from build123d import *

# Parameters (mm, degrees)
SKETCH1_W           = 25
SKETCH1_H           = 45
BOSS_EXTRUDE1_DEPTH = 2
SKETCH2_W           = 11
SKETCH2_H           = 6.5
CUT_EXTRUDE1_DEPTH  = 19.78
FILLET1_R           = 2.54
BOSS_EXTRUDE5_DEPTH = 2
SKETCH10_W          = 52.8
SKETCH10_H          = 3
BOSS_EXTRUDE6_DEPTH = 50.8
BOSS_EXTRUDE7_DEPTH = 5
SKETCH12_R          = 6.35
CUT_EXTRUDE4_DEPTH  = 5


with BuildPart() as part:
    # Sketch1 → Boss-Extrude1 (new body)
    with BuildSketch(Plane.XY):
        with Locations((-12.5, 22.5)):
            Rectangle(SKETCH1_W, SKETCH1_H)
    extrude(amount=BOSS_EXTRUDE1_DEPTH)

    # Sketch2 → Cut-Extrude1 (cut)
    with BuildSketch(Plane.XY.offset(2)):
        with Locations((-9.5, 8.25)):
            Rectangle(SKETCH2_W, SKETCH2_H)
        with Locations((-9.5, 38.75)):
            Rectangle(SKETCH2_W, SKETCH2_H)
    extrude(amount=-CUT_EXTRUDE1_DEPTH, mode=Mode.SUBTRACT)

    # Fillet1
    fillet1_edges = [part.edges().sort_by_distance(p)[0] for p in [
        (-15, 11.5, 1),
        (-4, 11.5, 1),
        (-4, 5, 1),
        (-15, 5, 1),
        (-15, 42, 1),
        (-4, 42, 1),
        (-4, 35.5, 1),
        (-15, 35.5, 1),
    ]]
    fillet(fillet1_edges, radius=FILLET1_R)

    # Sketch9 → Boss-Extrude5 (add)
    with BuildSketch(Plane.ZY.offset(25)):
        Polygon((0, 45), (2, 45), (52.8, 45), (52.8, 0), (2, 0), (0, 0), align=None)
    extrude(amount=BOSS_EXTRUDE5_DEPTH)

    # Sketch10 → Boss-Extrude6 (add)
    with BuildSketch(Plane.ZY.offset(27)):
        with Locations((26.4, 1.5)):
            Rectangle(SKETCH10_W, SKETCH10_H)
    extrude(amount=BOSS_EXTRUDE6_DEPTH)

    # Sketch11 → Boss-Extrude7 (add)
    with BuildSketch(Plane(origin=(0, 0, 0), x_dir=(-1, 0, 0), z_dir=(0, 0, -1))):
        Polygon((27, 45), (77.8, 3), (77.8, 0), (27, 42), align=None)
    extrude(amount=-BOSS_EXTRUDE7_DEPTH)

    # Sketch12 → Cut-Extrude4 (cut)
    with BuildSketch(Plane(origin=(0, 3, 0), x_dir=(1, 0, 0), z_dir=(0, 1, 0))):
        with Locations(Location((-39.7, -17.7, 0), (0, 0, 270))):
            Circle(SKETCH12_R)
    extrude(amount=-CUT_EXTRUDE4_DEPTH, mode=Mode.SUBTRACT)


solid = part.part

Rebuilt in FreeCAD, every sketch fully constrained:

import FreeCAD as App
import Part
import Sketcher


def edges_at(feature, points):
    """Names of the edges that pass closest to the given points."""
    edges = feature.Shape.Edges
    near = lambda p: min(range(len(edges)), key=lambda i: edges[i].distToShape(Part.Vertex(*p))[0])
    return sorted({f"Edge{near(p) + 1}" for p in points})

doc = App.newDocument("Part")
params = doc.addObject("Spreadsheet::Sheet", "Params")
for row, (alias, value) in enumerate([
    ("sketch1_width", "25 mm"),
    ("sketch1_height", "45 mm"),
    ("pad1_length", "2 mm"),
    ("sketch2_width", "11 mm"),
    ("sketch2_height", "6.5 mm"),
    ("pocket1_length", "19.78 mm"),
    ("fillet_radius", "2.54 mm"),
    ("sketch3_width", "45 mm"),
    ("sketch3_height", "52.8 mm"),
    ("pad2_length", "2 mm"),
    ("sketch4_width", "3 mm"),
    ("sketch4_height", "52.8 mm"),
    ("pad3_length", "50.8 mm"),
    ("sketch5_height", "3 mm"),
    ("pad4_length", "5 mm"),
    ("sketch6_diameter", "12.7 mm"),
    ("pocket2_length", "5 mm"),
], start=1):
    params.set(f"A{row}", alias)
    params.set(f"B{row}", "=" + value)
    params.setAlias(f"B{row}", alias)

body = doc.addObject("PartDesign::Body", "Body")

# Sketch on XY plane
sketch1 = body.newObject("Sketcher::SketchObject", "Sketch")
sketch1.AttachmentSupport = (doc.getObject("XY_Plane"), [""])
sketch1.MapMode = "FlatFace"
sketch1.addGeometry([
    Part.LineSegment(App.Vector(-25, 45, 0), App.Vector(-25, 0, 0)),
    Part.LineSegment(App.Vector(-25, 0, 0), App.Vector(0, 0, 0)),
    Part.LineSegment(App.Vector(0, 0, 0), App.Vector(0, 45, 0)),
    Part.LineSegment(App.Vector(0, 45, 0), App.Vector(-25, 45, 0)),
], False)
sketch1.addConstraint([
    Sketcher.Constraint("Coincident", 0, 2, 1, 1),
    Sketcher.Constraint("Coincident", 1, 2, 2, 1),
    Sketcher.Constraint("Coincident", 2, 2, 3, 1),
    Sketcher.Constraint("Coincident", 3, 2, 0, 1),
    Sketcher.Constraint("Vertical", 0),
    Sketcher.Constraint("Horizontal", 1),
    Sketcher.Constraint("Vertical", 2),
    Sketcher.Constraint("Horizontal", 3),
    Sketcher.Constraint("Coincident", 1, 2, -1, 1),
    Sketcher.Constraint("DistanceX", 1, 1, 1, 2, 25.0),
    Sketcher.Constraint("DistanceY", 0, 2, 0, 1, 45.0),
])
sketch1.setExpression("Constraints[9]", "Params.sketch1_width")
sketch1.setExpression("Constraints[10]", "Params.sketch1_height")
pad1 = body.newObject("PartDesign::Pad", "Pad")
pad1.Profile = sketch1
pad1.setExpression("Length", "Params.pad1_length")

# Sketch on XY plane
sketch2 = body.newObject("Sketcher::SketchObject", "Sketch001")
sketch2.AttachmentSupport = (doc.getObject("XY_Plane"), [""])
sketch2.MapMode = "FlatFace"
sketch2.AttachmentOffset = App.Placement(App.Vector(0, 0, 2), App.Rotation())
sketch2.addGeometry([
    Part.LineSegment(App.Vector(-15, 12, 0), App.Vector(-15, 5, 0)),  # 0
    Part.LineSegment(App.Vector(-15, 5, 0), App.Vector(-4, 5, 0)),  # 1
    Part.LineSegment(App.Vector(-4, 5, 0), App.Vector(-4, 12, 0)),  # 2
    Part.LineSegment(App.Vector(-4, 12, 0), App.Vector(-15, 12, 0)),  # 3
    Part.LineSegment(App.Vector(-15, 42, 0), App.Vector(-15, 36, 0)),  # 4
    Part.LineSegment(App.Vector(-15, 36, 0), App.Vector(-4, 36, 0)),  # 5
    Part.LineSegment(App.Vector(-4, 36, 0), App.Vector(-4, 42, 0)),  # 6
    Part.LineSegment(App.Vector(-4, 42, 0), App.Vector(-15, 42, 0)),  # 7
], False)
sketch2.addConstraint([
    Sketcher.Constraint("Coincident", 0, 2, 1, 1),
    Sketcher.Constraint("Coincident", 1, 2, 2, 1),
    Sketcher.Constraint("Coincident", 2, 2, 3, 1),
    Sketcher.Constraint("Coincident", 3, 2, 0, 1),
    Sketcher.Constraint("Coincident", 4, 2, 5, 1),
    Sketcher.Constraint("Coincident", 5, 2, 6, 1),
    Sketcher.Constraint("Coincident", 6, 2, 7, 1),
    Sketcher.Constraint("Coincident", 7, 2, 4, 1),
    Sketcher.Constraint("Vertical", 0),
    Sketcher.Constraint("Horizontal", 1),
    Sketcher.Constraint("Vertical", 2),
    Sketcher.Constraint("Horizontal", 3),
    Sketcher.Constraint("Vertical", 4),
    Sketcher.Constraint("Horizontal", 5),
    Sketcher.Constraint("Vertical", 6),
    Sketcher.Constraint("Horizontal", 7),
    Sketcher.Constraint("Vertical", 3, 2, 4, 2),
    Sketcher.Constraint("Vertical", 2, 2, 5, 2),
    Sketcher.Constraint("Equal", 2, 4),
    Sketcher.Constraint("DistanceX", 1, 1, 1, 2, 11.0),
    Sketcher.Constraint("DistanceY", 0, 2, 0, 1, 6.5),
    Sketcher.Constraint("DistanceX", 0, 2, -1, 1, 15.0),
    Sketcher.Constraint("DistanceY", -1, 1, 0, 2, 5.0),
    Sketcher.Constraint("DistanceY", -1, 1, 6, 2, 42.0),
])
sketch2.setExpression("Constraints[19]", "Params.sketch2_width")
sketch2.setExpression("Constraints[20]", "Params.sketch2_height")
pocket1 = body.newObject("PartDesign::Pocket", "Pocket")
pocket1.Profile = sketch2
pocket1.setExpression("Length", "Params.pocket1_length")
doc.recompute()

fillet = body.newObject("PartDesign::Fillet", "Fillet")
fillet.Base = (pocket1, edges_at(pocket1, [
    (-15, 11.5, 1),
    (-4, 11.5, 1),
    (-4, 5, 1),
    (-15, 5, 1),
    (-15, 42, 1),
    (-4, 42, 1),
    (-4, 35.5, 1),
    (-15, 35.5, 1),
]))
fillet.setExpression("Radius", "Params.fillet_radius")

# Sketch on YZ plane
sketch3 = body.newObject("Sketcher::SketchObject", "Sketch002")
sketch3.AttachmentSupport = (doc.getObject("YZ_Plane"), [""])
sketch3.MapMode = "FlatFace"
sketch3.AttachmentOffset = App.Placement(App.Vector(0, 0, -25), App.Rotation())
sketch3.addGeometry([
    Part.LineSegment(App.Vector(45, 53, 0), App.Vector(45, 0, 0)),
    Part.LineSegment(App.Vector(45, 0, 0), App.Vector(0, 0, 0)),
    Part.LineSegment(App.Vector(0, 0, 0), App.Vector(0, 53, 0)),
    Part.LineSegment(App.Vector(0, 53, 0), App.Vector(45, 53, 0)),
], False)
sketch3.addConstraint([
    Sketcher.Constraint("Coincident", 0, 2, 1, 1),
    Sketcher.Constraint("Coincident", 1, 2, 2, 1),
    Sketcher.Constraint("Coincident", 2, 2, 3, 1),
    Sketcher.Constraint("Coincident", 3, 2, 0, 1),
    Sketcher.Constraint("Vertical", 0),
    Sketcher.Constraint("Horizontal", 1),
    Sketcher.Constraint("Vertical", 2),
    Sketcher.Constraint("Horizontal", 3),
    Sketcher.Constraint("Coincident", 1, 2, -1, 1),
    Sketcher.Constraint("DistanceX", 1, 2, 1, 1, 45.0),
    Sketcher.Constraint("DistanceY", 0, 2, 0, 1, 52.8),
])
sketch3.setExpression("Constraints[9]", "Params.sketch3_width")
sketch3.setExpression("Constraints[10]", "Params.sketch3_height")
pad2 = body.newObject("PartDesign::Pad", "Pad001")
pad2.Profile = sketch3
pad2.setExpression("Length", "Params.pad2_length")
pad2.Reversed = True

# Sketch on YZ plane
sketch4 = body.newObject("Sketcher::SketchObject", "Sketch003")
sketch4.AttachmentSupport = (doc.getObject("YZ_Plane"), [""])
sketch4.MapMode = "FlatFace"
sketch4.AttachmentOffset = App.Placement(App.Vector(0, 0, -27), App.Rotation())
sketch4.addGeometry([
    Part.LineSegment(App.Vector(3, 0, 0), App.Vector(0, 0, 0)),
    Part.LineSegment(App.Vector(0, 0, 0), App.Vector(0, 52.8, 0)),
    Part.LineSegment(App.Vector(0, 52.8, 0), App.Vector(3, 52.8, 0)),
    Part.LineSegment(App.Vector(3, 52.8, 0), App.Vector(3, 0, 0)),
], False)
sketch4.addConstraint([
    Sketcher.Constraint("Coincident", 0, 2, 1, 1),
    Sketcher.Constraint("Coincident", 1, 2, 2, 1),
    Sketcher.Constraint("Coincident", 2, 2, 3, 1),
    Sketcher.Constraint("Coincident", 3, 2, 0, 1),
    Sketcher.Constraint("Horizontal", 0),
    Sketcher.Constraint("Vertical", 1),
    Sketcher.Constraint("Horizontal", 2),
    Sketcher.Constraint("Vertical", 3),
    Sketcher.Constraint("Coincident", 0, 2, -1, 1),
    Sketcher.Constraint("DistanceX", 0, 2, 0, 1, 3.0),
    Sketcher.Constraint("DistanceY", 1, 1, 1, 2, 52.8),
])
sketch4.setExpression("Constraints[9]", "Params.sketch4_width")
sketch4.setExpression("Constraints[10]", "Params.sketch4_height")
pad3 = body.newObject("PartDesign::Pad", "Pad002")
pad3.Profile = sketch4
pad3.setExpression("Length", "Params.pad3_length")
pad3.Reversed = True

# Sketch on XY plane
sketch5 = body.newObject("Sketcher::SketchObject", "Sketch004")
sketch5.AttachmentSupport = (doc.getObject("XY_Plane"), [""])
sketch5.MapMode = "FlatFace"
sketch5.addGeometry([
    Part.LineSegment(App.Vector(-77.8, 3, 0), App.Vector(-27, 45, 0)),
    Part.LineSegment(App.Vector(-27, 45, 0), App.Vector(-27, 42, 0)),
    Part.LineSegment(App.Vector(-27, 42, 0), App.Vector(-77.8, 0, 0)),
    Part.LineSegment(App.Vector(-77.8, 0, 0), App.Vector(-77.8, 3, 0)),
], False)
sketch5.addConstraint([
    Sketcher.Constraint("Coincident", 0, 2, 1, 1),
    Sketcher.Constraint("Coincident", 1, 2, 2, 1),
    Sketcher.Constraint("Coincident", 2, 2, 3, 1),
    Sketcher.Constraint("Coincident", 3, 2, 0, 1),
    Sketcher.Constraint("Vertical", 1),
    Sketcher.Constraint("Vertical", 3),
    Sketcher.Constraint("PointOnObject", 2, 2, -1),
    Sketcher.Constraint("Parallel", 0, 2),
    Sketcher.Constraint("DistanceY", 1, 2, 1, 1, 3.0),
    Sketcher.Constraint("DistanceX", 0, 2, -1, 1, 27.0),
    Sketcher.Constraint("DistanceY", -1, 1, 0, 2, 45.0),
    Sketcher.Constraint("DistanceX", 2, 2, -1, 1, 77.8),
])
sketch5.setExpression("Constraints[8]", "Params.sketch5_height")
pad4 = body.newObject("PartDesign::Pad", "Pad003")
pad4.Profile = sketch5
pad4.setExpression("Length", "Params.pad4_length")

# Sketch on XZ plane
sketch6 = body.newObject("Sketcher::SketchObject", "Sketch005")
sketch6.AttachmentSupport = (doc.getObject("XZ_Plane"), [""])
sketch6.MapMode = "FlatFace"
sketch6.AttachmentOffset = App.Placement(App.Vector(0, 0, -3), App.Rotation())
sketch6.addGeometry(Part.Circle(App.Vector(-40, 18, 0), App.Vector(0, 0, 1), 6), False)
sketch6.addConstraint([
    Sketcher.Constraint("Diameter", 0, 12.7),
    Sketcher.Constraint("DistanceX", 0, 3, -1, 1, 39.7),
    Sketcher.Constraint("DistanceY", -1, 1, 0, 3, 17.7),
])
sketch6.setExpression("Constraints[0]", "Params.sketch6_diameter")
pocket2 = body.newObject("PartDesign::Pocket", "Pocket001")
pocket2.Profile = sketch6
pocket2.setExpression("Length", "Params.pocket2_length")
pocket2.Reversed = True

doc.recompute()
